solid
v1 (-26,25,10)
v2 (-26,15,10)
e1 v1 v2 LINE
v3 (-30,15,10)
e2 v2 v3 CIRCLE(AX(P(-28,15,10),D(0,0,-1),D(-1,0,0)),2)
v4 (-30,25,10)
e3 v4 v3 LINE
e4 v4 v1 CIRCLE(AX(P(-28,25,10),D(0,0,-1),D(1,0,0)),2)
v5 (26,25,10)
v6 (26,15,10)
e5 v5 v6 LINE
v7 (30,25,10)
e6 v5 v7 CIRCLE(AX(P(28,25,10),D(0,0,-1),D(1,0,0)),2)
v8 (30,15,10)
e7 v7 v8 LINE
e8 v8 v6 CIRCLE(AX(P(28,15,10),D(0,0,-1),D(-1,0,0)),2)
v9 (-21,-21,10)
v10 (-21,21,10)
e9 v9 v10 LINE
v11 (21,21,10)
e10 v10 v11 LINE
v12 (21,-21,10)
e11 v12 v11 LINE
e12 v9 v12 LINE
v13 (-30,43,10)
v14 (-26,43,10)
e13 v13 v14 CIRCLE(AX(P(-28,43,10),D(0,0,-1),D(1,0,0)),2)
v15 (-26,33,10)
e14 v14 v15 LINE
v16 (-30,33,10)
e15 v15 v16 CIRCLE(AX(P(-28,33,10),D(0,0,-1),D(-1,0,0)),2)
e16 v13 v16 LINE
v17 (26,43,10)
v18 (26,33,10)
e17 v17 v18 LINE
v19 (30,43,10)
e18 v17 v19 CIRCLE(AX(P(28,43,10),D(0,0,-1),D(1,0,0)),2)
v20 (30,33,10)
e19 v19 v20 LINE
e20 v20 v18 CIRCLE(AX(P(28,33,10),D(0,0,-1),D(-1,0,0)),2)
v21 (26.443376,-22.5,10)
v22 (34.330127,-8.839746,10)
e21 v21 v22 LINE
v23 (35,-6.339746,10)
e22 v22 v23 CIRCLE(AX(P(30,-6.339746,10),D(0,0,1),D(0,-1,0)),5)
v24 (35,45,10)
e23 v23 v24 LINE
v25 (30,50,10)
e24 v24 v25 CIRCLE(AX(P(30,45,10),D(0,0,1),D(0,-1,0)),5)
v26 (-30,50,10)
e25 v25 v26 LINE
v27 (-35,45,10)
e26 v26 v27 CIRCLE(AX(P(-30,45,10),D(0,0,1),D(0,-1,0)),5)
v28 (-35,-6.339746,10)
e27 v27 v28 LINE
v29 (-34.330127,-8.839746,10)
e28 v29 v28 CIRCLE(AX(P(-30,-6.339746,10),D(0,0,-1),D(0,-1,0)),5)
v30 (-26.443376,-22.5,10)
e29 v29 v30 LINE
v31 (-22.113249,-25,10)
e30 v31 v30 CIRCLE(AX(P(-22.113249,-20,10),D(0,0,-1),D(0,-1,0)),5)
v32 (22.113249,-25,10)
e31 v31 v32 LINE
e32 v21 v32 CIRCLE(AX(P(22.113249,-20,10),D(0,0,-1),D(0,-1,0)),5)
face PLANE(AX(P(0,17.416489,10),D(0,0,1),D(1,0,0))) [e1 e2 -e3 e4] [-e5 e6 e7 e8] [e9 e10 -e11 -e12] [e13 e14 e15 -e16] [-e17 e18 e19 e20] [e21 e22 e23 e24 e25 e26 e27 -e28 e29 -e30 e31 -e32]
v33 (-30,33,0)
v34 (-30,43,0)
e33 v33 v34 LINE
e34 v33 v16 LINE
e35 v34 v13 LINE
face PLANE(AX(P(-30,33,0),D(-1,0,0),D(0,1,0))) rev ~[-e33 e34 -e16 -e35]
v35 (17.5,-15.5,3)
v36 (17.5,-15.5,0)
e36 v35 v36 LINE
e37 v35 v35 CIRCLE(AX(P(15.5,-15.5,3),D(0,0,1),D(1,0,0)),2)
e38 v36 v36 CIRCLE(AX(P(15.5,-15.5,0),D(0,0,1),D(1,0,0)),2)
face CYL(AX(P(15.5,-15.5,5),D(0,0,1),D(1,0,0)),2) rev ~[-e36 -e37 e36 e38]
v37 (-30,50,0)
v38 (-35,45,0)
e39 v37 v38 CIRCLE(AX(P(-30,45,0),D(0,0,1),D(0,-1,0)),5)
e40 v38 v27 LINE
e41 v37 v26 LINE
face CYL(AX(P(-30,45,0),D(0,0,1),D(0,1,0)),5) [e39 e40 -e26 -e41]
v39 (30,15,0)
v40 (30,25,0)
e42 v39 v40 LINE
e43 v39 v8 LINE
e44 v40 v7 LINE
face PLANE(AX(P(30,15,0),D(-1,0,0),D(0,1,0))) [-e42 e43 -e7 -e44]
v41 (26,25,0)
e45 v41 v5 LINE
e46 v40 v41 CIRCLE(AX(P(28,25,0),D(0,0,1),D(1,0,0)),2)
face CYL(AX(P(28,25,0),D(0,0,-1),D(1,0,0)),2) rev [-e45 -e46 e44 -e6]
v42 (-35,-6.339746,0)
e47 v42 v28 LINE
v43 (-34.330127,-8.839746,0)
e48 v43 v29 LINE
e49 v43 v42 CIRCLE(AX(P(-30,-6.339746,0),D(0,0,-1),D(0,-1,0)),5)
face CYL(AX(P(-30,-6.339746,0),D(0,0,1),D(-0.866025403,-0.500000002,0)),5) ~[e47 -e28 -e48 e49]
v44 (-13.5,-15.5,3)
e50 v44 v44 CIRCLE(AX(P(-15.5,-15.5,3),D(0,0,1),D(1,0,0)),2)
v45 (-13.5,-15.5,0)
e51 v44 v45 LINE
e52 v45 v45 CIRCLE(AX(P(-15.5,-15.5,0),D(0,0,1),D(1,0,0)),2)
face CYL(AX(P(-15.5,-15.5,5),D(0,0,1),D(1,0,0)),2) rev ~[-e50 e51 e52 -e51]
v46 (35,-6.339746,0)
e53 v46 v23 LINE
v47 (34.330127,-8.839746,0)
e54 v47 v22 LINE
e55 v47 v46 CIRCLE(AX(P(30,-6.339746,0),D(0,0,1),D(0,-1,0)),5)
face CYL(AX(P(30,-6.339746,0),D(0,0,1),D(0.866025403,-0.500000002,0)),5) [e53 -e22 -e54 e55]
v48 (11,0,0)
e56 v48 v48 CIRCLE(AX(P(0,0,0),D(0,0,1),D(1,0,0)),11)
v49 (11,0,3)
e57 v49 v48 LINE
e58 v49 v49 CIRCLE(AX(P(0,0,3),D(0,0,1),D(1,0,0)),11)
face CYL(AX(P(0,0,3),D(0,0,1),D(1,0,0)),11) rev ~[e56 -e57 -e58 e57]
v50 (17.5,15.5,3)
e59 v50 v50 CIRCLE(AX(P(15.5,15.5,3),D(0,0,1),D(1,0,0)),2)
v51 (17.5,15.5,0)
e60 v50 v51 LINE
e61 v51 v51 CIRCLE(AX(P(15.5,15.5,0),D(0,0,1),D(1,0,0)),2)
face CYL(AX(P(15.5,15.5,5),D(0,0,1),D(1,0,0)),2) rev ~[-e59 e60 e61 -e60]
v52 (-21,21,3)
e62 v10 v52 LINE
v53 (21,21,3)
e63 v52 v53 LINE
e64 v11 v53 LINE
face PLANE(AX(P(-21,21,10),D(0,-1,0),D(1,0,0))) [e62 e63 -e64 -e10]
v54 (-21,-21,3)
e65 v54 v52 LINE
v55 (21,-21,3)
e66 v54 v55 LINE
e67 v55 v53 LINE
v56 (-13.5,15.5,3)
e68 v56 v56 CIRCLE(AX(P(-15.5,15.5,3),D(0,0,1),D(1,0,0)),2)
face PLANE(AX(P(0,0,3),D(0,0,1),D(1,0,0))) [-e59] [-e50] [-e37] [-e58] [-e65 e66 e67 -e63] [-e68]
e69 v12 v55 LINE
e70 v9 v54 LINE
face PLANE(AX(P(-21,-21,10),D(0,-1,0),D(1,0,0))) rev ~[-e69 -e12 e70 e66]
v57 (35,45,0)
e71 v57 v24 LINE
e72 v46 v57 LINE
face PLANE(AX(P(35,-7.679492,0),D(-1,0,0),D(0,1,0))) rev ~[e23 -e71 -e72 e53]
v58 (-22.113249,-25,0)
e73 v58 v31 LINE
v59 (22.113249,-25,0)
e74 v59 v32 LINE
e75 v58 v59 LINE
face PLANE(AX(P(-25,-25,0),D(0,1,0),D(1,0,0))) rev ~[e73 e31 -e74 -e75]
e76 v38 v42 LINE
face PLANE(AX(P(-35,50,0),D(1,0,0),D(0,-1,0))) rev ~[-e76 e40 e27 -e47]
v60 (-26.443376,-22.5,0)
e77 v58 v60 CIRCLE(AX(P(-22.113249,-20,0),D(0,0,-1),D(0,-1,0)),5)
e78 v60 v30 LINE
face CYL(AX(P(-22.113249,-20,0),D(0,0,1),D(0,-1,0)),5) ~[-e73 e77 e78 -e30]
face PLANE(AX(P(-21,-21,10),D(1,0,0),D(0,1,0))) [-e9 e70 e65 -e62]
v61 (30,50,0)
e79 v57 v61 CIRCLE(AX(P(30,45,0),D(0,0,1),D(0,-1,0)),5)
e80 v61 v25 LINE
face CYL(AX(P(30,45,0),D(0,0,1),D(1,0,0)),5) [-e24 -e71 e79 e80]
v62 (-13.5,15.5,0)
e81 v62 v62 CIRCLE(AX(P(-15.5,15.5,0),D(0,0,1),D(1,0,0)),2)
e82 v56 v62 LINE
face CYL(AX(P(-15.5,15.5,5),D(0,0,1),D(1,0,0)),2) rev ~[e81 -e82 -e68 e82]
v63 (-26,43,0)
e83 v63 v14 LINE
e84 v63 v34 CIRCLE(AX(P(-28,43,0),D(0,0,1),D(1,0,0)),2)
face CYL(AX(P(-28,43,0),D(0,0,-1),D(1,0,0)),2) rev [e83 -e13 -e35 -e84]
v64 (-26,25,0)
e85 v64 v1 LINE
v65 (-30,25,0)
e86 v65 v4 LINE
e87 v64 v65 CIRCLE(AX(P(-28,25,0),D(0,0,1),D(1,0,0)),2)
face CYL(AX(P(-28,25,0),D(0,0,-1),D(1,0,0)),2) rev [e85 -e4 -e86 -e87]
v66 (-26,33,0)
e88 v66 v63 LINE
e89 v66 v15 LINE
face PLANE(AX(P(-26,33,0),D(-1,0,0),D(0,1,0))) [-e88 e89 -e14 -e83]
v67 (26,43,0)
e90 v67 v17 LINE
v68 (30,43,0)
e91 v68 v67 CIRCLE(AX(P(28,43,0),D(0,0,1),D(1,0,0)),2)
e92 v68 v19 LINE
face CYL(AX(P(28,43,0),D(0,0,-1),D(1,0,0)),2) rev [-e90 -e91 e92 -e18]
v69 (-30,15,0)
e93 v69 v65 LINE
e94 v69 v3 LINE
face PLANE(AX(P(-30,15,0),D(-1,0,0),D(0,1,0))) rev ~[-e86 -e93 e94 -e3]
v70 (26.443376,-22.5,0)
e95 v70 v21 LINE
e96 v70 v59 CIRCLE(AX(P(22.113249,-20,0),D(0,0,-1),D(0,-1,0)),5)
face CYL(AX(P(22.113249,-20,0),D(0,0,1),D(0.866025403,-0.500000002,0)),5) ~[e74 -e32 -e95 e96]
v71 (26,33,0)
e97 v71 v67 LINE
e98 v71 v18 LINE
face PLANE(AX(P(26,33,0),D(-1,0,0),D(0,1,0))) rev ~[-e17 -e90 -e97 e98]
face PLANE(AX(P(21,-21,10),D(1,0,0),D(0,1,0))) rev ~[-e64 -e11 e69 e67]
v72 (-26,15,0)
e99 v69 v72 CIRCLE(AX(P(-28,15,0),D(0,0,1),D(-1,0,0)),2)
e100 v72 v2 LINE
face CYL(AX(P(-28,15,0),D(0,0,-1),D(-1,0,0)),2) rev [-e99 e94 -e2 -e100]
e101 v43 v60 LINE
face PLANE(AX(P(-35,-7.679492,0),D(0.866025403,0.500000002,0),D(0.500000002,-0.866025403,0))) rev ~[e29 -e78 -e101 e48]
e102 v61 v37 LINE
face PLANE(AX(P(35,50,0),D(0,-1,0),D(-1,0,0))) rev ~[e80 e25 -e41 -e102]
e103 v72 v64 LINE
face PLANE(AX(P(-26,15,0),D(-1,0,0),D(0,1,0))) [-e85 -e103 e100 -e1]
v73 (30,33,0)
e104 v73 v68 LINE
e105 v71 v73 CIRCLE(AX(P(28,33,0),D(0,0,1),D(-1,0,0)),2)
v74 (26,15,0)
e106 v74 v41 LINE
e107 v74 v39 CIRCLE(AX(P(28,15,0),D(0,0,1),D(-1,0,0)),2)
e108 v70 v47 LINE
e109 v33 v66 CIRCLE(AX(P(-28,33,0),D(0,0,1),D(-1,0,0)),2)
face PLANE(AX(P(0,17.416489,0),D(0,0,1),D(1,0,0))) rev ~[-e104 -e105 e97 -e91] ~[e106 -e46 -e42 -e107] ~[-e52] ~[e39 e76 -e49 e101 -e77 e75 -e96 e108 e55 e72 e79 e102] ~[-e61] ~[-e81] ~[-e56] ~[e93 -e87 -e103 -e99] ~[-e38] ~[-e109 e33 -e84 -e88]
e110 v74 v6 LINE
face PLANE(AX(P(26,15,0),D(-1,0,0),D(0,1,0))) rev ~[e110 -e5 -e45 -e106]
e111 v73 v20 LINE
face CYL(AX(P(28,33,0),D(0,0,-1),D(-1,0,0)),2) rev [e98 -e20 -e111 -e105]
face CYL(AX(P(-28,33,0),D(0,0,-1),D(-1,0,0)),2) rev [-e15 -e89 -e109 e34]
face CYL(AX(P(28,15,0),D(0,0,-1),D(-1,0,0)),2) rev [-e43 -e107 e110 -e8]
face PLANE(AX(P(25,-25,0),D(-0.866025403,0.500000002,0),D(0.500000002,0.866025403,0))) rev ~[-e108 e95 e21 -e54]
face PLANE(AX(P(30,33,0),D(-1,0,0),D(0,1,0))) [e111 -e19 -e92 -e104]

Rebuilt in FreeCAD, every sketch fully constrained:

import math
import FreeCAD as App
import Part
import Sketcher

V = App.Vector
Q = App.Units.Quantity


def edges_at(feature, points):
    """Names of the edges that pass closest to the given points."""
    edges = feature.Shape.Edges
    near = lambda p: min(range(len(edges)), key=lambda i: edges[i].distToShape(Part.Vertex(*p))[0])
    return sorted({f"Edge{near(p) + 1}" for p in points})

doc = App.newDocument("Part")
params = doc.addObject("Spreadsheet::Sheet", "Params")
for row, (alias, value) in enumerate([
    ("sketch1_width", "50 mm"),
    ("pad1_length", "10 mm"),
    ("sketch2_width", "42 mm"),
    ("pocket1_length", "7 mm"),
    ("sketch3_diameter", "22 mm"),
    ("sketch4_diameter", "4 mm"),
    ("pocket3_length", "5 mm"),
    ("sketch5_width", "50 mm"),
    ("sketch5_width2", "70 mm"),
    ("pad2_length", "10 mm"),
    ("sketch6_radius", "2 mm"),
    ("sketch6_height", "10 mm"),
    ("sketch7_radius", "2 mm"),
    ("sketch7_height", "10 mm"),
    ("linearpattern_pitch", "18 mm"),
    ("fillet_radius", "5 mm"),
], start=1):
    params.set(f"A{row}", alias)
    params.set(f"B{row}", "=" + value)
    params.setAlias(f"B{row}", alias)

body = doc.addObject("PartDesign::Body", "Body")

# Sketch on XY plane
sketch1 = body.newObject("Sketcher::SketchObject", "Sketch")
sketch1.AttachmentSupport = (doc.getObject("XY_Plane"), [""])
sketch1.MapMode = "FlatFace"
sketch1.addGeometry(Part.LineSegment(V(-25, 25, 0), V(-25, -25, 0)), False)
sketch1.addGeometry(Part.LineSegment(V(-25, -25, 0), V(25, -25, 0)), False)
sketch1.addGeometry(Part.LineSegment(V(25, -25, 0), V(25, 25, 0)), False)
sketch1.addGeometry(Part.LineSegment(V(25, 25, 0), V(-25, 25, 0)), False)
sketch1.addConstraint(Sketcher.Constraint("Coincident", 0, 2, 1, 1))
sketch1.addConstraint(Sketcher.Constraint("Coincident", 1, 2, 2, 1))
sketch1.addConstraint(Sketcher.Constraint("Coincident", 2, 2, 3, 1))
sketch1.addConstraint(Sketcher.Constraint("Coincident", 3, 2, 0, 1))
sketch1.addConstraint(Sketcher.Constraint("Vertical", 0))
sketch1.addConstraint(Sketcher.Constraint("Horizontal", 1))
sketch1.addConstraint(Sketcher.Constraint("Vertical", 2))
sketch1.addConstraint(Sketcher.Constraint("Horizontal", 3))
sketch1.addConstraint(Sketcher.Constraint("Symmetric", 0, 2, 2, 2, -1, 1))
sketch1.addConstraint(Sketcher.Constraint("Equal", 3, 0))
sketch1.addConstraint(Sketcher.Constraint("DistanceX", 1, 1, 1, 2, Q("50 mm")))
sketch1.setExpression("Constraints[10]", "Params.sketch1_width")
pad1 = body.newObject("PartDesign::Pad", "Pad")
pad1.Profile = sketch1
pad1.setExpression("Length", "Params.pad1_length")

# Sketch on XY plane
sketch2 = body.newObject("Sketcher::SketchObject", "Sketch001")
sketch2.AttachmentSupport = (doc.getObject("XY_Plane"), [""])
sketch2.MapMode = "FlatFace"
sketch2.AttachmentOffset = App.Placement(V(0, 0, 10), App.Rotation())
sketch2.addGeometry(Part.LineSegment(V(-21, 21, 0), V(-21, -21, 0)), False)
sketch2.addGeometry(Part.LineSegment(V(-21, -21, 0), V(21, -21, 0)), False)
sketch2.addGeometry(Part.LineSegment(V(21, -21, 0), V(21, 21, 0)), False)
sketch2.addGeometry(Part.LineSegment(V(21, 21, 0), V(-21, 21, 0)), False)
sketch2.addConstraint(Sketcher.Constraint("Coincident", 0, 2, 1, 1))
sketch2.addConstraint(Sketcher.Constraint("Coincident", 1, 2, 2, 1))
sketch2.addConstraint(Sketcher.Constraint("Coincident", 2, 2, 3, 1))
sketch2.addConstraint(Sketcher.Constraint("Coincident", 3, 2, 0, 1))
sketch2.addConstraint(Sketcher.Constraint("Vertical", 0))
sketch2.addConstraint(Sketcher.Constraint("Horizontal", 1))
sketch2.addConstraint(Sketcher.Constraint("Vertical", 2))
sketch2.addConstraint(Sketcher.Constraint("Horizontal", 3))
sketch2.addConstraint(Sketcher.Constraint("Symmetric", 0, 2, 2, 2, -1, 1))
sketch2.addConstraint(Sketcher.Constraint("Equal", 3, 0))
sketch2.addConstraint(Sketcher.Constraint("DistanceX", 1, 1, 1, 2, Q("42 mm")))
sketch2.setExpression("Constraints[10]", "Params.sketch2_width")
pocket1 = body.newObject("PartDesign::Pocket", "Pocket")
pocket1.Profile = sketch2
pocket1.setExpression("Length", "Params.pocket1_length")

# Sketch on XY plane
sketch3 = body.newObject("Sketcher::SketchObject", "Sketch002")
sketch3.AttachmentSupport = (doc.getObject("XY_Plane"), [""])
sketch3.MapMode = "FlatFace"
sketch3.AttachmentOffset = App.Placement(V(0, 0, 3), App.Rotation())
sketch3.addGeometry(Part.Circle(V(0, 0, 0), V(0, 0, 1), 11), False)
sketch3.addConstraint(Sketcher.Constraint("Coincident", 0, 3, -1, 1))
sketch3.addConstraint(Sketcher.Constraint("Diameter", 0, Q("22 mm")))
sketch3.setExpression("Constraints[1]", "Params.sketch3_diameter")
pocket2 = body.newObject("PartDesign::Pocket", "Pocket001")
pocket2.Profile = sketch3
pocket2.Type = "ThroughAll"

# Sketch on XY plane
sketch4 = body.newObject("Sketcher::SketchObject", "Sketch003")
sketch4.AttachmentSupport = (doc.getObject("XY_Plane"), [""])
sketch4.MapMode = "FlatFace"
sketch4.AttachmentOffset = App.Placement(V(0, 0, 5), App.Rotation())
sketch4.addGeometry(Part.Circle(V(-15.5, 15.5, 0), V(0, 0, 1), 2), False)
sketch4.addGeometry(Part.Circle(V(15.5, 15.5, 0), V(0, 0, 1), 2), False)
sketch4.addGeometry(Part.Circle(V(15.5, -15.5, 0), V(0, 0, 1), 2), False)
sketch4.addGeometry(Part.Circle(V(-15.5, -15.5, 0), V(0, 0, 1), 2), False)
sketch4.addConstraint(Sketcher.Constraint("Equal", 0, 1))
sketch4.addConstraint(Sketcher.Constraint("Equal", 1, 2))
sketch4.addConstraint(Sketcher.Constraint("Equal", 2, 3))
sketch4.addConstraint(Sketcher.Constraint("Symmetric", 0, 3, 2, 3, -1, 1))
sketch4.addConstraint(Sketcher.Constraint("Symmetric", 1, 3, 3, 3, -1, 1))
sketch4.addConstraint(Sketcher.Constraint("Symmetric", 0, 3, 1, 3, -2))
sketch4.addConstraint(Sketcher.Constraint("Diameter", 0, Q("4 mm")))
sketch4.addConstraint(Sketcher.Constraint("DistanceX", 0, 3, 1, 3, Q("31 mm")))
sketch4.addConstraint(Sketcher.Constraint("DistanceY", 2, 3, 1, 3, Q("31 mm")))
sketch4.setExpression("Constraints[6]", "Params.sketch4_diameter")
pocket3 = body.newObject("PartDesign::Pocket", "Pocket002")
pocket3.Profile = sketch4
pocket3.setExpression("Length", "Params.pocket3_length")

# Sketch on XY plane
sketch5 = body.newObject("Sketcher::SketchObject", "Sketch004")
sketch5.AttachmentSupport = (doc.getObject("XY_Plane"), [""])
sketch5.MapMode = "FlatFace"
sketch5.addGeometry(Part.LineSegment(V(-25, 25, 0), V(25, 25, 0)), False)
sketch5.addGeometry(Part.LineSegment(V(25, 25, 0), V(25, -25, 0)), False)
sketch5.addGeometry(Part.LineSegment(V(25, -25, 0), V(35, -7.679492, 0)), False)
sketch5.addGeometry(Part.LineSegment(V(35, -7.679492, 0), V(35, 50, 0)), False)
sketch5.addGeometry(Part.LineSegment(V(35, 50, 0), V(-35, 50, 0)), False)
sketch5.addGeometry(Part.LineSegment(V(-35, 50, 0), V(-35, -7.679492, 0)), False)
sketch5.addGeometry(Part.LineSegment(V(-35, -7.679492, 0), V(-25, -25, 0)), False)
sketch5.addGeometry(Part.LineSegment(V(-25, -25, 0), V(-25, 25, 0)), False)
sketch5.addConstraint(Sketcher.Constraint("Coincident", 0, 2, 1, 1))
sketch5.addConstraint(Sketcher.Constraint("Coincident", 1, 2, 2, 1))
sketch5.addConstraint(Sketcher.Constraint("Coincident", 2, 2, 3, 1))
sketch5.addConstraint(Sketcher.Constraint("Coincident", 3, 2, 4, 1))
sketch5.addConstraint(Sketcher.Constraint("Coincident", 4, 2, 5, 1))
sketch5.addConstraint(Sketcher.Constraint("Coincident", 5, 2, 6, 1))
sketch5.addConstraint(Sketcher.Constraint("Coincident", 6, 2, 7, 1))
sketch5.addConstraint(Sketcher.Constraint("Coincident", 7, 2, 0, 1))
sketch5.addConstraint(Sketcher.Constraint("Horizontal", 0))
sketch5.addConstraint(Sketcher.Constraint("Vertical", 1))
sketch5.addConstraint(Sketcher.Constraint("Vertical", 3))
sketch5.addConstraint(Sketcher.Constraint("Horizontal", 4))
sketch5.addConstraint(Sketcher.Constraint("Vertical", 5))
sketch5.addConstraint(Sketcher.Constraint("Vertical", 7))
sketch5.addConstraint(Sketcher.Constraint("Symmetric", 0, 2, 6, 2, -1, 1))
sketch5.addConstraint(Sketcher.Constraint("Symmetric", 2, 2, 5, 2, -2))
sketch5.addConstraint(Sketcher.Constraint("Horizontal", 1, 2, 6, 2))
sketch5.addConstraint(Sketcher.Constraint("Equal", 0, 1))
sketch5.addConstraint(Sketcher.Constraint("DistanceX", 0, 1, 0, 2, Q("50 mm")))
sketch5.addConstraint(Sketcher.Constraint("DistanceX", 4, 2, 4, 1, Q("70 mm")))
sketch5.addConstraint(Sketcher.Constraint("Angle", 2, Q("60 deg")))
sketch5.addConstraint(Sketcher.Constraint("DistanceY", -1, 1, 3, 2, Q("50 mm")))
sketch5.setExpression("Constraints[18]", "Params.sketch5_width")
sketch5.setExpression("Constraints[19]", "Params.sketch5_width2")
pad2 = body.newObject("PartDesign::Pad", "Pad001")
pad2.Profile = sketch5
pad2.setExpression("Length", "Params.pad2_length")

# Sketch on XY plane
sketch6 = body.newObject("Sketcher::SketchObject", "Sketch005")
sketch6.AttachmentSupport = (doc.getObject("XY_Plane"), [""])
sketch6.MapMode = "FlatFace"
sketch6.addGeometry(Part.ArcOfCircle(Part.Circle(V(-28, 15, 0), V(0, 0, 1), 2), math.radians(180), math.radians(360)), False)
sketch6.addGeometry(Part.LineSegment(V(-26, 15, 0), V(-26, 25, 0)), False)
sketch6.addGeometry(Part.ArcOfCircle(Part.Circle(V(-28, 25, 0), V(0, 0, 1), 2), math.radians(0), math.radians(180)), False)
sketch6.addGeometry(Part.LineSegment(V(-30, 25, 0), V(-30, 15, 0)), False)
sketch6.addConstraint(Sketcher.Constraint("Tangent", 0, 2, 1, 1))
sketch6.addConstraint(Sketcher.Constraint("Tangent", 1, 2, 2, 1))
sketch6.addConstraint(Sketcher.Constraint("Tangent", 2, 2, 3, 1))
sketch6.addConstraint(Sketcher.Constraint("Tangent", 3, 2, 0, 1))
sketch6.addConstraint(Sketcher.Constraint("Vertical", 1))
sketch6.addConstraint(Sketcher.Constraint("Vertical", 3))
sketch6.addConstraint(Sketcher.Constraint("Radius", 0, Q("2 mm")))
sketch6.addConstraint(Sketcher.Constraint("DistanceY", 1, 1, 1, 2, Q("10 mm")))
sketch6.addConstraint(Sketcher.Constraint("DistanceX", 0, 3, -1, 1, Q("28 mm")))
sketch6.addConstraint(Sketcher.Constraint("DistanceY", -1, 1, 0, 3, Q("15 mm")))
sketch6.setExpression("Constraints[6]", "Params.sketch6_radius")
sketch6.setExpression("Constraints[7]", "Params.sketch6_height")
pocket4 = body.newObject("PartDesign::Pocket", "Pocket003")
pocket4.Profile = sketch6
pocket4.Type = "ThroughAll"
pocket4.Reversed = True

# Sketch on XY plane
sketch7 = body.newObject("Sketcher::SketchObject", "Sketch006")
sketch7.AttachmentSupport = (doc.getObject("XY_Plane"), [""])
sketch7.MapMode = "FlatFace"
sketch7.addGeometry(Part.ArcOfCircle(Part.Circle(V(28, 15, 0), V(0, 0, 1), 2), math.radians(180), math.radians(360)), False)
sketch7.addGeometry(Part.LineSegment(V(30, 15, 0), V(30, 25, 0)), False)
sketch7.addGeometry(Part.ArcOfCircle(Part.Circle(V(28, 25, 0), V(0, 0, 1), 2), math.radians(0), math.radians(180)), False)
sketch7.addGeometry(Part.LineSegment(V(26, 25, 0), V(26, 15, 0)), False)
sketch7.addConstraint(Sketcher.Constraint("Tangent", 0, 2, 1, 1))
sketch7.addConstraint(Sketcher.Constraint("Tangent", 1, 2, 2, 1))
sketch7.addConstraint(Sketcher.Constraint("Tangent", 2, 2, 3, 1))
sketch7.addConstraint(Sketcher.Constraint("Tangent", 3, 2, 0, 1))
sketch7.addConstraint(Sketcher.Constraint("Vertical", 1))
sketch7.addConstraint(Sketcher.Constraint("Vertical", 3))
sketch7.addConstraint(Sketcher.Constraint("Radius", 0, Q("2 mm")))
sketch7.addConstraint(Sketcher.Constraint("DistanceY", 1, 1, 1, 2, Q("10 mm")))
sketch7.addConstraint(Sketcher.Constraint("DistanceX", -1, 1, 0, 3, Q("28 mm")))
sketch7.addConstraint(Sketcher.Constraint("DistanceY", -1, 1, 0, 3, Q("15 mm")))
sketch7.setExpression("Constraints[6]", "Params.sketch7_radius")
sketch7.setExpression("Constraints[7]", "Params.sketch7_height")
pocket5 = body.newObject("PartDesign::Pocket", "Pocket004")
pocket5.Profile = sketch7
pocket5.Type = "ThroughAll"
pocket5.Reversed = True
doc.recompute()

linearpattern = body.newObject("PartDesign::LinearPattern", "LinearPattern")
linearpattern.Originals = [pocket4, pocket5]
linearpattern.Direction = (doc.getObject("Y_Axis"), [""])
linearpattern.Mode = "offset"
linearpattern.setExpression("Offset", "Params.linearpattern_pitch")
linearpattern.Occurrences = 2
body.Tip = linearpattern
doc.recompute()

fillet = body.newObject("PartDesign::Fillet", "Fillet")
fillet.Base = (linearpattern, edges_at(linearpattern, [
    (-35, 50, 5),
    (35, 50, 5),
    (-25, -25, 5),
    (25, -25, 5),
    (35, -7.679, 5),
    (-35, -7.679, 5),
]))
fillet.setExpression("Radius", "Params.fillet_radius")

doc.recompute()
